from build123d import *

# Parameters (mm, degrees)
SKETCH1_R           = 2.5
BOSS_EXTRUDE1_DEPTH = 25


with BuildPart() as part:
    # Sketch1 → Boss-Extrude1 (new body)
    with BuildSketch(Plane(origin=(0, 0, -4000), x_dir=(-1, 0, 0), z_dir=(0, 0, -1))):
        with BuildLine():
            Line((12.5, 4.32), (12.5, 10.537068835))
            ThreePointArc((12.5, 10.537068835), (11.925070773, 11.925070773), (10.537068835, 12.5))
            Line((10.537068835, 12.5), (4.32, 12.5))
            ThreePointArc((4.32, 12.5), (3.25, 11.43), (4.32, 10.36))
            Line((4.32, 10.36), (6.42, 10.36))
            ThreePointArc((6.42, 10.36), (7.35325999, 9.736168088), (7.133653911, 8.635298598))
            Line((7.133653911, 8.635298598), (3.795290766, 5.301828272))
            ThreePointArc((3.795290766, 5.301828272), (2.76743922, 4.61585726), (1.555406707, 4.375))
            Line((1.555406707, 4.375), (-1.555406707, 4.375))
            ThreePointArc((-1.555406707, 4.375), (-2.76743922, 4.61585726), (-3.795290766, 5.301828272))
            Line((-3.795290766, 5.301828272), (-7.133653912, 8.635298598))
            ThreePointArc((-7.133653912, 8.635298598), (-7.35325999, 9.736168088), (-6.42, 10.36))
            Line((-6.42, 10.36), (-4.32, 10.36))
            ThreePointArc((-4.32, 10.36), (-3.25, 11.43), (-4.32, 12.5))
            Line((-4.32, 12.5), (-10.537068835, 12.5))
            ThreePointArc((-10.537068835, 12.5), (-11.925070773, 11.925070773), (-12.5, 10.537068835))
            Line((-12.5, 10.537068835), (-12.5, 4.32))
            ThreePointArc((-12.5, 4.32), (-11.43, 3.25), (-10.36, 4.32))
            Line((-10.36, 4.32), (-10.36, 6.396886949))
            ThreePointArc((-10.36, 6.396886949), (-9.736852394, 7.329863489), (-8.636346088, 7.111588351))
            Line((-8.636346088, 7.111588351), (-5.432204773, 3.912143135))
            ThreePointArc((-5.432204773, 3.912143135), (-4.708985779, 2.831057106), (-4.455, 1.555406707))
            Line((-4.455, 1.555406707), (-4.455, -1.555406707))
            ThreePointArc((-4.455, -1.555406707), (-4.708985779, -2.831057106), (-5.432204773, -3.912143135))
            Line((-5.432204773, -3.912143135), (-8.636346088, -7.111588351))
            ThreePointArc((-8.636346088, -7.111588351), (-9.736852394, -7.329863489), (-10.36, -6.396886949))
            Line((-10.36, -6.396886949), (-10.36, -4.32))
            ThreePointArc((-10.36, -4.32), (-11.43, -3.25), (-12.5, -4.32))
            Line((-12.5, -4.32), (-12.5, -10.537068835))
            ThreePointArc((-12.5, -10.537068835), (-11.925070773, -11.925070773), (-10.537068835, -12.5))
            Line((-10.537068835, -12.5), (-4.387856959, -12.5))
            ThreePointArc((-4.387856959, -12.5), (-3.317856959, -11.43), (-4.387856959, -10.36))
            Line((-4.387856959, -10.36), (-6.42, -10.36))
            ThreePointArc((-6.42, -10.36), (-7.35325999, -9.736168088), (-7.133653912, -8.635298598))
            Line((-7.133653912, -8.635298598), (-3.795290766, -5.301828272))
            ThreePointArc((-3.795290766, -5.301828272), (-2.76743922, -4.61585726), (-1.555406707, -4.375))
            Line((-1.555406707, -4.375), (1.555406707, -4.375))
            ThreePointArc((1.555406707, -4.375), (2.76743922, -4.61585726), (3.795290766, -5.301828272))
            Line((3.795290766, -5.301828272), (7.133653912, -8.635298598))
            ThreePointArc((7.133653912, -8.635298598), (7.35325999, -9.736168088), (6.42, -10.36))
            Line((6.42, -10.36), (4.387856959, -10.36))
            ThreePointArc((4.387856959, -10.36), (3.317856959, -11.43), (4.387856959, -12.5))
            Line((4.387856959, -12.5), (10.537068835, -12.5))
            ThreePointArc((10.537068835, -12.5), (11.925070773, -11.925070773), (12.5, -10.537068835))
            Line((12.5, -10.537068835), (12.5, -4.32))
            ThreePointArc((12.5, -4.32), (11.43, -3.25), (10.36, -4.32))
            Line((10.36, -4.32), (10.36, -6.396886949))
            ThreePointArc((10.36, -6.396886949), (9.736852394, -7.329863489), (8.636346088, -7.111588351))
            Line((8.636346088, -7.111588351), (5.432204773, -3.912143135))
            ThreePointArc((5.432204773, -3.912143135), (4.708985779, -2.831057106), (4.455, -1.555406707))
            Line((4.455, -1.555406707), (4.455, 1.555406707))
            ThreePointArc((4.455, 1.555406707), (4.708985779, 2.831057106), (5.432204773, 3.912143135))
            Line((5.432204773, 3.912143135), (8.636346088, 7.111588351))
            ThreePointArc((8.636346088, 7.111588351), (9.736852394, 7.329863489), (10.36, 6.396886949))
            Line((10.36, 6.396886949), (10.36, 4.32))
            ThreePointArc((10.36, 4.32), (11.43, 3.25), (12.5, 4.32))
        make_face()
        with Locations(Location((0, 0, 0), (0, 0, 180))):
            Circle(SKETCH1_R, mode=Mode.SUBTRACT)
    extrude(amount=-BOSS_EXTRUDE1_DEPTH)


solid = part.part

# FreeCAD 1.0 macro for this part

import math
import FreeCAD as App
import Part
import Sketcher

V = App.Vector
Q = App.Units.Quantity

doc = App.newDocument("Part")
params = doc.addObject("Spreadsheet::Sheet", "Params")
for row, (alias, value) in enumerate([
    ("sketch1_diameter", "5 mm"),
    ("sketch1_radius", "1.07 mm"),
    ("sketch1_radius2", "1.01 mm"),
    ("sketch1_radius3", "3.17 mm"),
    ("sketch1_width", "2.1 mm"),
    ("pad1_length", "25 mm"),
], start=1):
    params.set(f"A{row}", alias)
    params.set(f"B{row}", "=" + value)
    params.setAlias(f"B{row}", alias)

body = doc.addObject("PartDesign::Body", "Body")

# Sketch on XY plane
sketch1 = doc.addObject("Sketcher::SketchObject", "Sketch")
body.addObject(sketch1)
sketch1.AttachmentSupport = (doc.XY_Plane, [""])
sketch1.MapMode = "FlatFace"
sketch1.AttachmentOffset = App.Placement(V(0, 0, -4000), App.Rotation())
sketch1.addGeometry([
    Part.LineSegment(V(-12.5, 4.3, 0), V(-12.5, 10.5, 0)),  # 0
    Part.ArcOfCircle(Part.Circle(V(-10.5, 10.5, 0), V(0, 0, 1), 2), math.radians(90), math.radians(180)),  # 1
    Part.LineSegment(V(-10.5, 12.5, 0), V(-4.3, 12.5, 0)),  # 2
    Part.ArcOfCircle(Part.Circle(V(-4.3, 11.4, 0), V(0, 0, 1), 1.1), math.radians(-90), math.radians(90)),  # 3
    Part.LineSegment(V(-4.3, 10.4, 0), V(-6.4, 10.4, 0)),  # 4
    Part.ArcOfCircle(Part.Circle(V(-6.4, 9.4, 0), V(0, 0, 1), 1), math.radians(90), math.radians(225)),  # 5
    Part.LineSegment(V(-7.1, 8.6, 0), V(-3.8, 5.3, 0)),  # 6
    Part.ArcOfCircle(Part.Circle(V(-1.6, 7.5, 0), V(0, 0, 1), 3.2), math.radians(-135), math.radians(-90)),  # 7
    Part.LineSegment(V(-1.6, 4.4, 0), V(1.6, 4.4, 0)),  # 8
    Part.ArcOfCircle(Part.Circle(V(1.6, 7.5, 0), V(0, 0, 1), 3.2), math.radians(-90), math.radians(-45)),  # 9
    Part.LineSegment(V(3.8, 5.3, 0), V(7.1, 8.6, 0)),  # 10
    Part.ArcOfCircle(Part.Circle(V(6.4, 9.3, 0), V(0, 0, 1), 1), math.radians(-45), math.radians(90)),  # 11
    Part.LineSegment(V(6.4, 10.4, 0), V(4.3, 10.4, 0)),  # 12
    Part.ArcOfCircle(Part.Circle(V(4.3, 11.4, 0), V(0, 0, 1), 1.1), math.radians(90), math.radians(270)),  # 13
    Part.LineSegment(V(4.3, 12.5, 0), V(10.5, 12.5, 0)),  # 14
    Part.ArcOfCircle(Part.Circle(V(10.5, 10.5, 0), V(0, 0, 1), 2), math.radians(0), math.radians(90)),  # 15
    Part.LineSegment(V(12.5, 10.5, 0), V(12.5, 4.3, 0)),  # 16
    Part.ArcOfCircle(Part.Circle(V(11.4, 4.3, 0), V(0, 0, 1), 1.1), math.radians(180), math.radians(360)),  # 17
    Part.LineSegment(V(10.4, 4.3, 0), V(10.4, 6.4, 0)),  # 18
    Part.ArcOfCircle(Part.Circle(V(9.3, 6.4, 0), V(0, 0, 1), 1), math.radians(0), math.radians(135)),  # 19
    Part.LineSegment(V(8.6, 7.1, 0), V(5.4, 3.9, 0)),  # 20
    Part.ArcOfCircle(Part.Circle(V(7.8, 1.6, 0), V(0, 0, 1), 3.3), math.radians(135), math.radians(180)),  # 21
    Part.LineSegment(V(4.5, 1.6, 0), V(4.5, -1.6, 0)),  # 22
    Part.ArcOfCircle(Part.Circle(V(7.8, -1.6, 0), V(0, 0, 1), 3.3), math.radians(180), math.radians(225)),  # 23
    Part.LineSegment(V(5.4, -3.9, 0), V(8.6, -7.1, 0)),  # 24
    Part.ArcOfCircle(Part.Circle(V(9.3, -6.4, 0), V(0, 0, 1), 1), math.radians(-135), math.radians(0)),  # 25
    Part.LineSegment(V(10.4, -6.4, 0), V(10.4, -4.3, 0)),  # 26
    Part.ArcOfCircle(Part.Circle(V(11.4, -4.3, 0), V(0, 0, 1), 1.1), math.radians(0), math.radians(180)),  # 27
    Part.LineSegment(V(12.5, -4.3, 0), V(12.5, -10.5, 0)),  # 28
    Part.ArcOfCircle(Part.Circle(V(10.5, -10.5, 0), V(0, 0, 1), 2), math.radians(-90), math.radians(0)),  # 29
    Part.LineSegment(V(10.5, -12.5, 0), V(4.4, -12.5, 0)),  # 30
    Part.ArcOfCircle(Part.Circle(V(4.4, -11.4, 0), V(0, 0, 1), 1.1), math.radians(90), math.radians(270)),  # 31
    Part.LineSegment(V(4.4, -10.4, 0), V(6.4, -10.4, 0)),  # 32
    Part.ArcOfCircle(Part.Circle(V(6.4, -9.3, 0), V(0, 0, 1), 1), math.radians(-90), math.radians(45)),  # 33
    Part.LineSegment(V(7.1, -8.6, 0), V(3.8, -5.3, 0)),  # 34
    Part.ArcOfCircle(Part.Circle(V(1.6, -7.5, 0), V(0, 0, 1), 3.2), math.radians(45), math.radians(90)),  # 35
    Part.LineSegment(V(1.6, -4.4, 0), V(-1.6, -4.4, 0)),  # 36
    Part.ArcOfCircle(Part.Circle(V(-1.6, -7.5, 0), V(0, 0, 1), 3.2), math.radians(90), math.radians(135)),  # 37
    Part.LineSegment(V(-3.8, -5.3, 0), V(-7.1, -8.6, 0)),  # 38
    Part.ArcOfCircle(Part.Circle(V(-6.4, -9.3, 0), V(0, 0, 1), 1), math.radians(135), math.radians(270)),  # 39
    Part.LineSegment(V(-6.4, -10.4, 0), V(-4.4, -10.4, 0)),  # 40
    Part.ArcOfCircle(Part.Circle(V(-4.4, -11.4, 0), V(0, 0, 1), 1.1), math.radians(-90), math.radians(90)),  # 41
    Part.LineSegment(V(-4.4, -12.5, 0), V(-10.5, -12.5, 0)),  # 42
    Part.ArcOfCircle(Part.Circle(V(-10.5, -10.5, 0), V(0, 0, 1), 2), math.radians(180), math.radians(270)),  # 43
    Part.LineSegment(V(-12.5, -10.5, 0), V(-12.5, -4.3, 0)),  # 44
    Part.ArcOfCircle(Part.Circle(V(-11.4, -4.3, 0), V(0, 0, 1), 1.1), math.radians(0), math.radians(180)),  # 45
    Part.LineSegment(V(-10.4, -4.3, 0), V(-10.4, -6.4, 0)),  # 46
    Part.ArcOfCircle(Part.Circle(V(-9.3, -6.4, 0), V(0, 0, 1), 1), math.radians(-180), math.radians(-45)),  # 47
    Part.LineSegment(V(-8.6, -7.1, 0), V(-5.4, -3.9, 0)),  # 48
    Part.ArcOfCircle(Part.Circle(V(-7.8, -1.6, 0), V(0, 0, 1), 3.3), math.radians(-45), math.radians(0)),  # 49
    Part.LineSegment(V(-4.5, -1.6, 0), V(-4.5, 1.6, 0)),  # 50
    Part.ArcOfCircle(Part.Circle(V(-7.8, 1.6, 0), V(0, 0, 1), 3.3), math.radians(0), math.radians(45)),  # 51
    Part.LineSegment(V(-5.4, 3.9, 0), V(-8.6, 7.1, 0)),  # 52
    Part.ArcOfCircle(Part.Circle(V(-9.3, 6.4, 0), V(0, 0, 1), 1), math.radians(45), math.radians(180)),  # 53
    Part.LineSegment(V(-10.4, 6.4, 0), V(-10.4, 4.3, 0)),  # 54
    Part.ArcOfCircle(Part.Circle(V(-11.4, 4.3, 0), V(0, 0, 1), 1.1), math.radians(180), math.radians(360)),  # 55
    Part.Circle(V(0, 0, 0), V(0, 0, 1), 2.5),  # 56
], False)
sketch1.addConstraint([
    Sketcher.Constraint("Tangent", 0, 2, 1, 2),
    Sketcher.Constraint("Tangent", 1, 1, 2, 1),
    Sketcher.Constraint("Tangent", 2, 2, 3, 2),
    Sketcher.Constraint("Tangent", 3, 1, 4, 1),
    Sketcher.Constraint("Tangent", 4, 2, 5, 1),
    Sketcher.Constraint("Tangent", 5, 2, 6, 1),
    Sketcher.Constraint("Tangent", 6, 2, 7, 1),
    Sketcher.Constraint("Tangent", 7, 2, 8, 1),
    Sketcher.Constraint("Tangent", 8, 2, 9, 1),
    Sketcher.Constraint("Tangent", 9, 2, 10, 1),
    Sketcher.Constraint("Tangent", 10, 2, 11, 1),
    Sketcher.Constraint("Tangent", 11, 2, 12, 1),
    Sketcher.Constraint("Tangent", 12, 2, 13, 2),
    Sketcher.Constraint("Tangent", 13, 1, 14, 1),
    Sketcher.Constraint("Tangent", 14, 2, 15, 2),
    Sketcher.Constraint("Tangent", 15, 1, 16, 1),
    Sketcher.Constraint("Tangent", 16, 2, 17, 2),
    Sketcher.Constraint("Tangent", 17, 1, 18, 1),
    Sketcher.Constraint("Tangent", 18, 2, 19, 1),
    Sketcher.Constraint("Tangent", 19, 2, 20, 1),
    Sketcher.Constraint("Tangent", 20, 2, 21, 1),
    Sketcher.Constraint("Tangent", 21, 2, 22, 1),
    Sketcher.Constraint("Tangent", 22, 2, 23, 1),
    Sketcher.Constraint("Tangent", 23, 2, 24, 1),
    Sketcher.Constraint("Tangent", 24, 2, 25, 1),
    Sketcher.Constraint("Tangent", 25, 2, 26, 1),
    Sketcher.Constraint("Tangent", 26, 2, 27, 2),
    Sketcher.Constraint("Tangent", 27, 1, 28, 1),
    Sketcher.Constraint("Tangent", 28, 2, 29, 2),
    Sketcher.Constraint("Tangent", 29, 1, 30, 1),
    Sketcher.Constraint("Tangent", 30, 2, 31, 2),
    Sketcher.Constraint("Tangent", 31, 1, 32, 1),
    Sketcher.Constraint("Tangent", 32, 2, 33, 1),
    Sketcher.Constraint("Tangent", 33, 2, 34, 1),
    Sketcher.Constraint("Tangent", 34, 2, 35, 1),
    Sketcher.Constraint("Tangent", 35, 2, 36, 1),
    Sketcher.Constraint("Tangent", 36, 2, 37, 1),
    Sketcher.Constraint("Tangent", 37, 2, 38, 1),
    Sketcher.Constraint("Tangent", 38, 2, 39, 1),
    Sketcher.Constraint("Tangent", 39, 2, 40, 1),
    Sketcher.Constraint("Tangent", 40, 2, 41, 2),
    Sketcher.Constraint("Tangent", 41, 1, 42, 1),
    Sketcher.Constraint("Tangent", 42, 2, 43, 2),
    Sketcher.Constraint("Tangent", 43, 1, 44, 1),
    Sketcher.Constraint("Tangent", 44, 2, 45, 2),
    Sketcher.Constraint("Tangent", 45, 1, 46, 1),
    Sketcher.Constraint("Tangent", 46, 2, 47, 1),
    Sketcher.Constraint("Tangent", 47, 2, 48, 1),
    Sketcher.Constraint("Tangent", 48, 2, 49, 1),
    Sketcher.Constraint("Tangent", 49, 2, 50, 1),
    Sketcher.Constraint("Tangent", 50, 2, 51, 1),
    Sketcher.Constraint("Tangent", 51, 2, 52, 1),
    Sketcher.Constraint("Tangent", 52, 2, 53, 1),
    Sketcher.Constraint("Tangent", 53, 2, 54, 1),
    Sketcher.Constraint("Tangent", 54, 2, 55, 2),
    Sketcher.Constraint("Tangent", 55, 1, 0, 1),
    Sketcher.Constraint("Vertical", 0),
    Sketcher.Constraint("Horizontal", 2),
    Sketcher.Constraint("Horizontal", 4),
    Sketcher.Constraint("Horizontal", 8),
    Sketcher.Constraint("Horizontal", 12),
    Sketcher.Constraint("Horizontal", 14),
    Sketcher.Constraint("Vertical", 16),
    Sketcher.Constraint("Vertical", 18),
    Sketcher.Constraint("Vertical", 22),
    Sketcher.Constraint("Vertical", 26),
    Sketcher.Constraint("Vertical", 28),
    Sketcher.Constraint("Horizontal", 30),
    Sketcher.Constraint("Horizontal", 32),
    Sketcher.Constraint("Horizontal", 36),
    Sketcher.Constraint("Horizontal", 40),
    Sketcher.Constraint("Horizontal", 42),
    Sketcher.Constraint("Vertical", 44),
    Sketcher.Constraint("Vertical", 46),
    Sketcher.Constraint("Vertical", 50),
    Sketcher.Constraint("Vertical", 54),
    Sketcher.Constraint("Coincident", 56, 3, -1, 1),
    Sketcher.Constraint("Equal", 7, 9),
    Sketcher.Constraint("Equal", 5, 11),
    Sketcher.Constraint("Equal", 3, 13),
    Sketcher.Constraint("Equal", 1, 15),
    Sketcher.Constraint("Equal", 13, 17),
    Sketcher.Constraint("Equal", 11, 19),
    Sketcher.Constraint("Equal", 21, 23),
    Sketcher.Constraint("Equal", 19, 25),
    Sketcher.Constraint("Equal", 17, 27),
    Sketcher.Constraint("Equal", 15, 29),
    Sketcher.Constraint("Equal", 27, 31),
    Sketcher.Constraint("Equal", 25, 33),
    Sketcher.Constraint("Equal", 9, 35),
    Sketcher.Constraint("Equal", 35, 37),
    Sketcher.Constraint("Equal", 33, 39),
    Sketcher.Constraint("Equal", 31, 41),
    Sketcher.Constraint("Equal", 29, 43),
    Sketcher.Constraint("Equal", 41, 45),
    Sketcher.Constraint("Equal", 39, 47),
    Sketcher.Constraint("Equal", 23, 49),
    Sketcher.Constraint("Equal", 49, 51),
    Sketcher.Constraint("Equal", 47, 53),
    Sketcher.Constraint("Equal", 45, 55),
    Sketcher.Constraint("Symmetric", 1, 3, 29, 3, -1, 1),
    Sketcher.Constraint("Symmetric", 7, 3, 35, 3, -1, 1),
    Sketcher.Constraint("Symmetric", 11, 3, 39, 3, -1, 1),
    Sketcher.Constraint("Symmetric", 17, 3, 45, 3, -1, 1),
    Sketcher.Constraint("Symmetric", 21, 3, 49, 3, -1, 1),
    Sketcher.Constraint("Symmetric", 23, 2, 51, 2, -1, 1),
    Sketcher.Constraint("Symmetric", 5, 3, 11, 3, -2),
    Sketcher.Constraint("Symmetric", 27, 3, 45, 3, -2),
    Sketcher.Constraint("Symmetric", 34, 2, 37, 2, -2),
    Sketcher.Constraint("Symmetric", 24, 2, 47, 2, -2),
    Sketcher.Constraint("Parallel", 10, 20),
    Sketcher.Constraint("Parallel", 6, 24),
    Sketcher.Constraint("Parallel", 20, 38),
    Sketcher.Constraint("Horizontal", 17, 3, 55, 3),
    Sketcher.Constraint("Equal", 4, 12),
    Sketcher.Constraint("Equal", 32, 40),
    Sketcher.Constraint("Equal", 14, 0),
    Sketcher.Constraint("Equal", 36, 22),
    Sketcher.Constraint("Diameter", 56, Q("5 mm")),
    Sketcher.Constraint("Radius", 3, Q("1.07 mm")),
    Sketcher.Constraint("Radius", 5, Q("1.01 mm")),
    Sketcher.Constraint("Radius", 7, Q("3.17 mm")),
    Sketcher.Constraint("DistanceX", 4, 2, 4, 1, Q("2.1 mm")),
    Sketcher.Constraint("DistanceX", 0, 2, -1, 1, Q("12.5 mm")),
    Sketcher.Constraint("DistanceY", -1, 1, 1, 1, Q("12.5 mm")),
    Sketcher.Constraint("DistanceX", 3, 3, -1, 1, Q("4.32 mm")),
    Sketcher.Constraint("Radius", 1, Q("1.962931 mm")),
    Sketcher.Constraint("DistanceY", -1, 1, 7, 3, Q("7.545 mm")),
    Sketcher.Constraint("DistanceX", -1, 1, 21, 2, Q("4.455 mm")),
    Sketcher.Constraint("Radius", 21, Q("3.330487 mm")),
    Sketcher.Constraint("Distance", 6, Q("4.7177 mm")),
    Sketcher.Constraint("DistanceX", 30, 2, 30, 1, Q("6.149212 mm")),
])
sketch1.setExpression("Constraints[118]", "Params.sketch1_diameter")
sketch1.setExpression("Constraints[119]", "Params.sketch1_radius")
sketch1.setExpression("Constraints[120]", "Params.sketch1_radius2")
sketch1.setExpression("Constraints[121]", "Params.sketch1_radius3")
sketch1.setExpression("Constraints[122]", "Params.sketch1_width")
pad1 = doc.addObject("PartDesign::Pad", "Pad")
body.addObject(pad1)
pad1.Profile = sketch1
pad1.setExpression("Length", "Params.pad1_length")

doc.recompute()
